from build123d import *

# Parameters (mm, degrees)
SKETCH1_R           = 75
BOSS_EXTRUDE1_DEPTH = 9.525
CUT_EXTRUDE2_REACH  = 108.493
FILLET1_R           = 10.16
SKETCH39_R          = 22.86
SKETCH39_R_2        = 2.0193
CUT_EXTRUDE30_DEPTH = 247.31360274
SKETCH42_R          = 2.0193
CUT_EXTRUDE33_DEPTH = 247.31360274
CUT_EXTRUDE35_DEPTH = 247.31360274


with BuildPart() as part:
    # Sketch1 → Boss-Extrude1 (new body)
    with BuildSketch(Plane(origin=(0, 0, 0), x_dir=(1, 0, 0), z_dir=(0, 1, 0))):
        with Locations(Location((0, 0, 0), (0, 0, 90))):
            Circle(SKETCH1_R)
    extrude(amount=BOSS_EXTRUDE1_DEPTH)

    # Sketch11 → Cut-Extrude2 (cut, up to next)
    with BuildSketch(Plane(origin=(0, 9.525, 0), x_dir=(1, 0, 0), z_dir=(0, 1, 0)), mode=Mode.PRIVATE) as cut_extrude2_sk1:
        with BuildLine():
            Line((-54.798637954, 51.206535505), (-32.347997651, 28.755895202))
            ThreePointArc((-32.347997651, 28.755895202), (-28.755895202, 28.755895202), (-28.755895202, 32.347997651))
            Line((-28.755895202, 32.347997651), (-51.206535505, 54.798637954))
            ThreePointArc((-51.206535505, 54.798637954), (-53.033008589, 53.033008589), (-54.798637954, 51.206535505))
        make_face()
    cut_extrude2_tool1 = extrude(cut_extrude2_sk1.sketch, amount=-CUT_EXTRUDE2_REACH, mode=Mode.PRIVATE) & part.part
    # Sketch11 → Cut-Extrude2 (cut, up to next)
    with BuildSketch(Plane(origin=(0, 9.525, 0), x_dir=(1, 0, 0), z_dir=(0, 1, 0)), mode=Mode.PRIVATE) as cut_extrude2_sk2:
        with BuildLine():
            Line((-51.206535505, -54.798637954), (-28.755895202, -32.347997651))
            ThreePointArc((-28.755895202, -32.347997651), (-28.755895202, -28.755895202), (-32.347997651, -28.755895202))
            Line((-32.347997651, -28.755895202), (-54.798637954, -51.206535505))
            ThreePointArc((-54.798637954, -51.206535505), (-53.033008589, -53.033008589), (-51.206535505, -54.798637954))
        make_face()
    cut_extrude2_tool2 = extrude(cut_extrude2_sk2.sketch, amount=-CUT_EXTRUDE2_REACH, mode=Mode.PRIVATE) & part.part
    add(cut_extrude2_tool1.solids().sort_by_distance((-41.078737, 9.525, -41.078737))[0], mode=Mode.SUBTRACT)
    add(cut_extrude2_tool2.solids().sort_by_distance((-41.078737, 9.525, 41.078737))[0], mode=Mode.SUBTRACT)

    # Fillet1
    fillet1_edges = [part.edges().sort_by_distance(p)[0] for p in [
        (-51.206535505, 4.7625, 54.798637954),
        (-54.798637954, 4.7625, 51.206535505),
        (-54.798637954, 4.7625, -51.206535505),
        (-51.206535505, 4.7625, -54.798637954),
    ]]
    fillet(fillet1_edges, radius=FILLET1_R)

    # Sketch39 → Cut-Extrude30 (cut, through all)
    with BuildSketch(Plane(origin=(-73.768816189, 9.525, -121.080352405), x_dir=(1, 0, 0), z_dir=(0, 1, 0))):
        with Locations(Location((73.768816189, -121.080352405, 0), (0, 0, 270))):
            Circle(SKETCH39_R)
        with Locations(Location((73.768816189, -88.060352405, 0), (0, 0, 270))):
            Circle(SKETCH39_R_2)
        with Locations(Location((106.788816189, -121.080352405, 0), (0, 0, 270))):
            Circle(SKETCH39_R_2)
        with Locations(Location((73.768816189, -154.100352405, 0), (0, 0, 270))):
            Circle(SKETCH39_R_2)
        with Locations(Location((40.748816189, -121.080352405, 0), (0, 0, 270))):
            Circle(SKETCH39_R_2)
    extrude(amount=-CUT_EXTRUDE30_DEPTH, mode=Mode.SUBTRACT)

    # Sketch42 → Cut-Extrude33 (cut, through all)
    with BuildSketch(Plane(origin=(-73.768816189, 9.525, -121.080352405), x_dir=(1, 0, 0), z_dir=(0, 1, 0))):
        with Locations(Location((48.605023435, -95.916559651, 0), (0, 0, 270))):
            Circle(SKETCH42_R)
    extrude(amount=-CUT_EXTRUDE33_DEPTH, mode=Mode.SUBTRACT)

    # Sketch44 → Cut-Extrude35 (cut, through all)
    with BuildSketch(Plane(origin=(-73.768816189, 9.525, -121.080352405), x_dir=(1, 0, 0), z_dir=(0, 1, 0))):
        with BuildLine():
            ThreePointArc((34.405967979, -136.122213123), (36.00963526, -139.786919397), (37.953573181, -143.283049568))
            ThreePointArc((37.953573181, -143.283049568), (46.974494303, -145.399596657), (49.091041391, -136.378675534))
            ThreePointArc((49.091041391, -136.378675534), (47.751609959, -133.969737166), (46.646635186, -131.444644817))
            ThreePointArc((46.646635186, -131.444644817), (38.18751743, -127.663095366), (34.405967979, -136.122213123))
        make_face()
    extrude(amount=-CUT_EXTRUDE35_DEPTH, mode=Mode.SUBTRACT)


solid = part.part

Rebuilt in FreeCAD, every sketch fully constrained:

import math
import FreeCAD as App
import Part
import Sketcher
from FreeCAD import Vector
Q = App.Units.Quantity


def edges_at(feature, points):
    """Names of the edges that pass closest to the given points."""
    edges = feature.Shape.Edges
    near = lambda p: min(range(len(edges)), key=lambda i: edges[i].distToShape(Part.Vertex(*p))[0])
    return sorted({f"Edge{near(p) + 1}" for p in points})

doc = App.newDocument("Part")
body = doc.addObject("PartDesign::Body", "Body")

# Sketch on XZ plane
sketch1 = body.newObject("Sketcher::SketchObject", "Sketch")
sketch1.AttachmentSupport = (doc.getObject("XZ_Plane"), [""])
sketch1.MapMode = "FlatFace"
sketch1.addGeometry(Part.Circle(Vector(0, 0, 0), Vector(0, 0, 1), 75), False)
sketch1.addConstraint([
    Sketcher.Constraint("Coincident", 0, 3, -1, 1),
    Sketcher.Constraint("Diameter", 0, 150.0),
])
pad1 = body.newObject("PartDesign::Pad", "Pad")
pad1.Profile = sketch1
pad1.Length = Q("0.375 in")
pad1.Reversed = True

# Sketch on XZ plane
sketch2 = body.newObject("Sketcher::SketchObject", "Sketch001")
sketch2.AttachmentSupport = (doc.getObject("XZ_Plane"), [""])
sketch2.MapMode = "FlatFace"
sketch2.AttachmentOffset = App.Placement(Vector(0, 0, -0.375 * 25.4), App.Rotation())
sketch2.addGeometry([
    Part.LineSegment(Vector(-54.798638, -51.206536, 0), Vector(-32.347998, -28.755895, 0)),
    Part.ArcOfCircle(Part.Circle(Vector(-30.551946, -30.551946, 0), Vector(0, 0, 1), 2.54), math.radians(-45), math.radians(135)),
    Part.LineSegment(Vector(-28.755895, -32.347998, 0), Vector(-51.206536, -54.798638, 0)),
    Part.ArcOfCircle(Part.Circle(Vector(0, 0, 0), Vector(0, 0, 1), 75), math.radians(-136.940788), math.radians(-133.059212)),
], False)
sketch2.addConstraint([
    Sketcher.Constraint("Tangent", 0, 2, 1, 2),
    Sketcher.Constraint("Tangent", 1, 1, 2, 1),
    Sketcher.Constraint("Coincident", 2, 2, 3, 2),
    Sketcher.Constraint("Coincident", 3, 1, 0, 1),
    Sketcher.Constraint("Coincident", 3, 3, -1, 1),
    Sketcher.Constraint("Parallel", 0, 2),
    Sketcher.Constraint("Equal", 0, 2),
    Sketcher.Constraint("Radius", 1, Q("0.1 in")),
    Sketcher.Constraint("Angle", 0, Q("45 deg")),
    Sketcher.Constraint("Distance", 0, Q("1.25 in")),
    Sketcher.Constraint("Radius", 3, 75.0),
])
pocket1 = body.newObject("PartDesign::Pocket", "Pocket")
pocket1.Profile = sketch2
pocket1.Type = "UpToFirst"
pocket1.Reversed = True

# Sketch on XZ plane
sketch3 = body.newObject("Sketcher::SketchObject", "Sketch002")
sketch3.AttachmentSupport = (doc.getObject("XZ_Plane"), [""])
sketch3.MapMode = "FlatFace"
sketch3.AttachmentOffset = App.Placement(Vector(0, 0, -0.375 * 25.4), App.Rotation())
sketch3.addGeometry([
    Part.LineSegment(Vector(-51.206536, 54.798638, 0), Vector(-28.755895, 32.347998, 0)),
    Part.ArcOfCircle(Part.Circle(Vector(-30.551946, 30.551946, 0), Vector(0, 0, 1), 2.54), math.radians(-135), math.radians(45)),
    Part.LineSegment(Vector(-32.347998, 28.755895, 0), Vector(-54.798638, 51.206536, 0)),
    Part.ArcOfCircle(Part.Circle(Vector(0, 0, 0), Vector(0, 0, 1), 75), math.radians(133.059212), math.radians(136.940788)),
], False)
sketch3.addConstraint([
    Sketcher.Constraint("Tangent", 0, 2, 1, 2),
    Sketcher.Constraint("Tangent", 1, 1, 2, 1),
    Sketcher.Constraint("Coincident", 2, 2, 3, 2),
    Sketcher.Constraint("Coincident", 3, 1, 0, 1),
    Sketcher.Constraint("Coincident", 3, 3, -1, 1),
    Sketcher.Constraint("Parallel", 0, 2),
    Sketcher.Constraint("Equal", 0, 2),
    Sketcher.Constraint("Radius", 1, Q("0.1 in")),
    Sketcher.Constraint("Angle", 0, Q("-45 deg")),
    Sketcher.Constraint("Distance", 0, Q("1.25 in")),
    Sketcher.Constraint("Radius", 3, 75.0),
])
pocket2 = body.newObject("PartDesign::Pocket", "Pocket001")
pocket2.Profile = sketch3
pocket2.Type = "UpToFirst"
pocket2.Reversed = True
doc.recompute()

fillet = body.newObject("PartDesign::Fillet", "Fillet")
fillet.Base = (pocket2, edges_at(pocket2, [
    (-51.207, 4.763, 54.799),
    (-54.799, 4.763, 51.207),
    (-54.799, 4.763, -51.207),
    (-51.207, 4.763, -54.799),
]))
fillet.Radius = Q("0.4 in")

# Sketch on XZ plane
sketch4 = body.newObject("Sketcher::SketchObject", "Sketch003")
sketch4.AttachmentSupport = (doc.getObject("XZ_Plane"), [""])
sketch4.MapMode = "FlatFace"
sketch4.AttachmentOffset = App.Placement(Vector(0, 0, -0.375 * 25.4), App.Rotation())
sketch4.addGeometry([
    Part.Circle(Vector(0, 0, 0), Vector(0, 0, 1), 22.86),  # 0
    Part.Circle(Vector(0, -33.02, 0), Vector(0, 0, 1), 2.0193),  # 1
    Part.Circle(Vector(33.02, 0, 0), Vector(0, 0, 1), 2.0193),  # 2
    Part.Circle(Vector(0, 33.02, 0), Vector(0, 0, 1), 2.0193),  # 3
    Part.Circle(Vector(-33.02, 0, 0), Vector(0, 0, 1), 2.0193),  # 4
], False)
sketch4.addConstraint([
    Sketcher.Constraint("Coincident", 0, 3, -1, 1),
    Sketcher.Constraint("Equal", 1, 2),
    Sketcher.Constraint("Equal", 2, 3),
    Sketcher.Constraint("Equal", 3, 4),
    Sketcher.Constraint("Symmetric", 1, 3, 3, 3, -1, 1),
    Sketcher.Constraint("Symmetric", 2, 3, 4, 3, -1, 1),
    Sketcher.Constraint("PointOnObject", 1, 3, -2),
    Sketcher.Constraint("PointOnObject", 2, 3, -1),
    Sketcher.Constraint("Diameter", 0, Q("1.8 in")),
    Sketcher.Constraint("Diameter", 1, Q("0.159 in")),
    Sketcher.Constraint("DistanceY", 1, 3, -1, 1, Q("1.3 in")),
    Sketcher.Constraint("DistanceX", -1, 1, 2, 3, Q("1.3 in")),
])
pocket3 = body.newObject("PartDesign::Pocket", "Pocket002")
pocket3.Profile = sketch4
pocket3.Type = "ThroughAll"
pocket3.Reversed = True

# Sketch on XZ plane
sketch5 = body.newObject("Sketcher::SketchObject", "Sketch004")
sketch5.AttachmentSupport = (doc.getObject("XZ_Plane"), [""])
sketch5.MapMode = "FlatFace"
sketch5.AttachmentOffset = App.Placement(Vector(0, 0, -0.375 * 25.4), App.Rotation())
sketch5.addGeometry(Part.Circle(Vector(-25.163793, -25.163793, 0), Vector(0, 0, 1), 2.0193), False)
sketch5.addConstraint([
    Sketcher.Constraint("Diameter", 0, Q("0.159 in")),
    Sketcher.Constraint("DistanceX", 0, 3, -1, 1, 25.163793),
    Sketcher.Constraint("DistanceY", 0, 3, -1, 1, 25.163793),
])
pocket4 = body.newObject("PartDesign::Pocket", "Pocket003")
pocket4.Profile = sketch5
pocket4.Type = "ThroughAll"
pocket4.Reversed = True

# Sketch on XZ plane
sketch6 = body.newObject("Sketcher::SketchObject", "Sketch005")
sketch6.AttachmentSupport = (doc.getObject("XZ_Plane"), [""])
sketch6.MapMode = "FlatFace"
sketch6.AttachmentOffset = App.Placement(Vector(0, 0, -0.375 * 25.4), App.Rotation())
sketch6.addGeometry([
    Part.ArcOfCircle(Part.Circle(Vector(0, 0, 0), Vector(0, 0, 1), 42.138953), math.radians(148.204269), math.radians(159.086471)),
    Part.ArcOfCircle(Part.Circle(Vector(-30.246509, 18.75051, 0), Vector(0, 0, 1), 6.551976), math.radians(-31.795731), math.radians(148.204269)),
    Part.ArcOfCircle(Part.Circle(Vector(0, 0, 0), Vector(0, 0, 1), 29.035001), math.radians(148.204269), math.radians(159.086471)),
    Part.ArcOfCircle(Part.Circle(Vector(-33.242515, 12.703077, 0), Vector(0, 0, 1), 6.551976), math.radians(159.086471), math.radians(339.086471)),
], False)
sketch6.addConstraint([
    Sketcher.Constraint("Tangent", 0, 1, 1, 2),
    Sketcher.Constraint("Tangent", 1, 1, 2, 1),
    Sketcher.Constraint("Tangent", 2, 2, 3, 2),
    Sketcher.Constraint("Tangent", 3, 1, 0, 2),
    Sketcher.Constraint("Coincident", 0, 3, -1, 1),
    Sketcher.Constraint("Coincident", 2, 3, -1, 1),
    Sketcher.Constraint("Radius", 2, 29.035001),
    Sketcher.Constraint("Radius", 0, 42.138953),
    Sketcher.Constraint("DistanceX", 1, 3, -1, 1, 30.246509),
    Sketcher.Constraint("DistanceX", 2, 2, -1, 1, 27.122181),
])
pocket5 = body.newObject("PartDesign::Pocket", "Pocket004")
pocket5.Profile = sketch6
pocket5.Type = "ThroughAll"
pocket5.Reversed = True

doc.recompute()
